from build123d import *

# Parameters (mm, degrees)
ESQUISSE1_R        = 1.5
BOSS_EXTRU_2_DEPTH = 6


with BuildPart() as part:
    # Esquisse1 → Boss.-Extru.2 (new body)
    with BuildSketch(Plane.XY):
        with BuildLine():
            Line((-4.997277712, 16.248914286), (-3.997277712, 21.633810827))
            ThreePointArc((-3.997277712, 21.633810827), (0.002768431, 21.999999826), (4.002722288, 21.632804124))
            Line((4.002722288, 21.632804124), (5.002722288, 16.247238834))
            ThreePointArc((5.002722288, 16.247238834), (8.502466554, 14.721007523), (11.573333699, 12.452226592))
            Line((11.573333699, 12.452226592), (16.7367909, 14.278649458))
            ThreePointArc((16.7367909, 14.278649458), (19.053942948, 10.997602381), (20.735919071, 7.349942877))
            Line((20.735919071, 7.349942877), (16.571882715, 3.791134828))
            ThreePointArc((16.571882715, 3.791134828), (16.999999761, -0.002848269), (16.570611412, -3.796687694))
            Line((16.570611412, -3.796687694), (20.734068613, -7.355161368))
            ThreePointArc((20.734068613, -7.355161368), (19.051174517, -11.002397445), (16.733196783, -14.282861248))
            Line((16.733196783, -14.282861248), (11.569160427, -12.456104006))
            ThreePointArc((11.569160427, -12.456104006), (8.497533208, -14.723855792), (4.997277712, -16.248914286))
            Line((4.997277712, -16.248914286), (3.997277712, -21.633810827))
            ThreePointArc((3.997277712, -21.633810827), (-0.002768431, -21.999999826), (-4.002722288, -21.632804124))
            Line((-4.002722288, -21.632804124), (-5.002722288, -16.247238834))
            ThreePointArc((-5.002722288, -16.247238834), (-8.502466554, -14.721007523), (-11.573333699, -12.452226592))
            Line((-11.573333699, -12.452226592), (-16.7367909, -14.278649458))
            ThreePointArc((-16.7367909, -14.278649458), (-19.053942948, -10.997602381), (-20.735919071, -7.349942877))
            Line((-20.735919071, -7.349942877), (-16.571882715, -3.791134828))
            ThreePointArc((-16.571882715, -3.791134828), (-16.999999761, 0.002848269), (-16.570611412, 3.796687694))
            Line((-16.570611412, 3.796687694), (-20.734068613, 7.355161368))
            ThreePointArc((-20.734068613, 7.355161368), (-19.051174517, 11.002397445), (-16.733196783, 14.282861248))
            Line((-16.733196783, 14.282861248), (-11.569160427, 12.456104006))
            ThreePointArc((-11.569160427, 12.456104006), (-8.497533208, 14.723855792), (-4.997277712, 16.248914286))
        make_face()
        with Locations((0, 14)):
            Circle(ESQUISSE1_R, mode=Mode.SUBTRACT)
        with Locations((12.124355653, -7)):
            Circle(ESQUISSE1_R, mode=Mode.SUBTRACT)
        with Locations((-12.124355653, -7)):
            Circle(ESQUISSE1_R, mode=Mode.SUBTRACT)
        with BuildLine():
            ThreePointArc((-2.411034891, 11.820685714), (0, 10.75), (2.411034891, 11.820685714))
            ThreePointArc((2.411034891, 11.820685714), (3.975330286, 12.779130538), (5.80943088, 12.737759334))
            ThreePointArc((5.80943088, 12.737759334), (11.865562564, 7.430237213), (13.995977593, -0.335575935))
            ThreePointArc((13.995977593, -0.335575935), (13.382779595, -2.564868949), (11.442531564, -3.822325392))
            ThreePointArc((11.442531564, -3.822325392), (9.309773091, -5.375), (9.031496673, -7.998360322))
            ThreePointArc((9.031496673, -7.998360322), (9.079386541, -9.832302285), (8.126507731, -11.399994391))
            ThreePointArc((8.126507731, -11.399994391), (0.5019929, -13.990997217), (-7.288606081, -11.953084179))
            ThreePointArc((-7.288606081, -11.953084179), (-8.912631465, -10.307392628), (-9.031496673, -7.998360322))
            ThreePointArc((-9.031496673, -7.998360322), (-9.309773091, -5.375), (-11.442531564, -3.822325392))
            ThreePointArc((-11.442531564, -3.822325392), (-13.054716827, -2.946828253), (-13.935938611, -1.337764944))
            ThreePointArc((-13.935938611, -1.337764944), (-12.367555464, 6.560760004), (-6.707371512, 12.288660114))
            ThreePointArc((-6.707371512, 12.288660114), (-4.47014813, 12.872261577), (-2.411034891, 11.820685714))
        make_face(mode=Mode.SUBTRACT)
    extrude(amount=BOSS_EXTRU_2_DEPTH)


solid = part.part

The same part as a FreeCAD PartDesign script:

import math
import FreeCAD as App
import Part
import Sketcher

V = App.Vector

doc = App.newDocument("Part")
body = doc.addObject("PartDesign::Body", "Body")

# Sketch on XY plane
sketch1 = body.newObject("Sketcher::SketchObject", "Sketch")
sketch1.AttachmentSupport = (doc.getObject("XY_Plane"), [""])
sketch1.MapMode = "FlatFace"
sketch1.addGeometry([
    Part.LineSegment(V(-4, 21.6, 0), V(-5, 16.2, 0)),  # 0
    Part.ArcOfCircle(Part.Circle(V(0, 0, 0), V(0, 0, 1), 17), math.radians(107), math.radians(133)),  # 1
    Part.LineSegment(V(-11.6, 12.5, 0), V(-16.7, 14.3, 0)),  # 2
    Part.ArcOfCircle(Part.Circle(V(0, 0, 0), V(0, 0, 1), 22), math.radians(140), math.radians(160)),  # 3
    Part.LineSegment(V(-20.7, 7.4, 0), V(-16.6, 3.8, 0)),  # 4
    Part.ArcOfCircle(Part.Circle(V(0, 0, 0), V(0, 0, 1), 17), math.radians(167), math.radians(193)),  # 5
    Part.LineSegment(V(-16.6, -3.8, 0), V(-20.7, -7.3, 0)),  # 6
    Part.ArcOfCircle(Part.Circle(V(0, 0, 0), V(0, 0, 1), 22), math.radians(-160), math.radians(-140)),  # 7
    Part.LineSegment(V(-16.7, -14.3, 0), V(-11.6, -12.5, 0)),  # 8
    Part.ArcOfCircle(Part.Circle(V(0, 0, 0), V(0, 0, 1), 17), math.radians(-133), math.radians(-107)),  # 9
    Part.LineSegment(V(-5, -16.2, 0), V(-4, -21.6, 0)),  # 10
    Part.ArcOfCircle(Part.Circle(V(0, 0, 0), V(0, 0, 1), 22), math.radians(-100), math.radians(-80)),  # 11
    Part.LineSegment(V(4, -21.6, 0), V(5, -16.2, 0)),  # 12
    Part.ArcOfCircle(Part.Circle(V(0, 0, 0), V(0, 0, 1), 17), math.radians(-73), math.radians(-47)),  # 13
    Part.LineSegment(V(11.6, -12.5, 0), V(16.7, -14.3, 0)),  # 14
    Part.ArcOfCircle(Part.Circle(V(0, 0, 0), V(0, 0, 1), 22), math.radians(-40), math.radians(-20)),  # 15
    Part.LineSegment(V(20.7, -7.4, 0), V(16.6, -3.8, 0)),  # 16
    Part.ArcOfCircle(Part.Circle(V(0, 0, 0), V(0, 0, 1), 17), math.radians(-13), math.radians(13)),  # 17
    Part.LineSegment(V(16.6, 3.8, 0), V(20.7, 7.3, 0)),  # 18
    Part.ArcOfCircle(Part.Circle(V(0, 0, 0), V(0, 0, 1), 22), math.radians(20), math.radians(40)),  # 19
    Part.LineSegment(V(16.7, 14.3, 0), V(11.6, 12.5, 0)),  # 20
    Part.ArcOfCircle(Part.Circle(V(0, 0, 0), V(0, 0, 1), 17), math.radians(47), math.radians(73)),  # 21
    Part.LineSegment(V(5, 16.2, 0), V(4, 21.6, 0)),  # 22
    Part.ArcOfCircle(Part.Circle(V(0, 0, 0), V(0, 0, 1), 22), math.radians(80), math.radians(100)),  # 23
    Part.Circle(V(12.1, -7, 0), V(0, 0, 1), 1.5),  # 24
    Part.Circle(V(-12.1, -7, 0), V(0, 0, 1), 1.5),  # 25
    Part.ArcOfCircle(Part.Circle(V(0, 14, 0), V(0, 0, 1), 3.3), math.radians(-138), math.radians(-42)),  # 26
    Part.ArcOfCircle(Part.Circle(V(4.8, 9.6, 0), V(0, 0, 1), 3.2), math.radians(72), math.radians(138)),  # 27
    Part.ArcOfCircle(Part.Circle(V(0, 0, 0), V(0, 0, 1), 14), math.radians(-1), math.radians(65)),  # 28
    Part.ArcOfCircle(Part.Circle(V(10.8, -0.6, 0), V(0, 0, 1), 3.2), math.radians(-78), math.radians(5)),  # 29
    Part.ArcOfCircle(Part.Circle(V(12.1, -7, 0), V(0, 0, 1), 3.3), math.radians(102), math.radians(198)),  # 30
    Part.ArcOfCircle(Part.Circle(V(5.9, -9, 0), V(0, 0, 1), 3.2), math.radians(-48), math.radians(18)),  # 31
    Part.ArcOfCircle(Part.Circle(V(0, 0, 0), V(0, 0, 1), 14), math.radians(-121), math.radians(-55)),  # 32
    Part.ArcOfCircle(Part.Circle(V(-5.9, -9, 0), V(0, 0, 1), 3.2), math.radians(162), math.radians(245)),  # 33
    Part.ArcOfCircle(Part.Circle(V(-12.1, -7, 0), V(0, 0, 1), 3.3), math.radians(-18), math.radians(78)),  # 34
    Part.ArcOfCircle(Part.Circle(V(-10.8, -0.6, 0), V(0, 0, 1), 3.2), math.radians(-168), math.radians(-102)),  # 35
    Part.ArcOfCircle(Part.Circle(V(0, 0, 0), V(0, 0, 1), 14), math.radians(119), math.radians(185)),  # 36
    Part.ArcOfCircle(Part.Circle(V(-4.8, 9.6, 0), V(0, 0, 1), 3.2), math.radians(42), math.radians(125)),  # 37
    Part.Circle(V(0, 14, 0), V(0, 0, 1), 1.5),  # 38
], False)
sketch1.addConstraint([
    Sketcher.Constraint("Coincident", 0, 2, 1, 1),
    Sketcher.Constraint("Coincident", 1, 2, 2, 1),
    Sketcher.Constraint("Coincident", 2, 2, 3, 1),
    Sketcher.Constraint("Coincident", 3, 2, 4, 1),
    Sketcher.Constraint("Coincident", 4, 2, 5, 1),
    Sketcher.Constraint("Coincident", 5, 2, 6, 1),
    Sketcher.Constraint("Coincident", 6, 2, 7, 1),
    Sketcher.Constraint("Coincident", 7, 2, 8, 1),
    Sketcher.Constraint("Coincident", 8, 2, 9, 1),
    Sketcher.Constraint("Coincident", 9, 2, 10, 1),
    Sketcher.Constraint("Coincident", 10, 2, 11, 1),
    Sketcher.Constraint("Coincident", 11, 2, 12, 1),
    Sketcher.Constraint("Coincident", 12, 2, 13, 1),
    Sketcher.Constraint("Coincident", 13, 2, 14, 1),
    Sketcher.Constraint("Coincident", 14, 2, 15, 1),
    Sketcher.Constraint("Coincident", 15, 2, 16, 1),
    Sketcher.Constraint("Coincident", 16, 2, 17, 1),
    Sketcher.Constraint("Coincident", 17, 2, 18, 1),
    Sketcher.Constraint("Coincident", 18, 2, 19, 1),
    Sketcher.Constraint("Coincident", 19, 2, 20, 1),
    Sketcher.Constraint("Coincident", 20, 2, 21, 1),
    Sketcher.Constraint("Coincident", 21, 2, 22, 1),
    Sketcher.Constraint("Coincident", 22, 2, 23, 1),
    Sketcher.Constraint("Coincident", 23, 2, 0, 1),
    Sketcher.Constraint("Tangent", 26, 2, 27, 2),
    Sketcher.Constraint("Coincident", 27, 1, 28, 2),
    Sketcher.Constraint("Coincident", 28, 1, 29, 2),
    Sketcher.Constraint("Tangent", 29, 1, 30, 1),
    Sketcher.Constraint("Tangent", 30, 2, 31, 2),
    Sketcher.Constraint("Coincident", 31, 1, 32, 2),
    Sketcher.Constraint("Coincident", 32, 1, 33, 2),
    Sketcher.Constraint("Tangent", 33, 1, 34, 1),
    Sketcher.Constraint("Tangent", 34, 2, 35, 2),
    Sketcher.Constraint("Coincident", 35, 1, 36, 2),
    Sketcher.Constraint("Coincident", 36, 1, 37, 2),
    Sketcher.Constraint("Tangent", 37, 1, 26, 1),
    Sketcher.Constraint("Coincident", 1, 3, -1, 1),
    Sketcher.Constraint("Coincident", 3, 3, -1, 1),
    Sketcher.Constraint("Coincident", 5, 3, -1, 1),
    Sketcher.Constraint("Coincident", 7, 3, -1, 1),
    Sketcher.Constraint("Coincident", 9, 3, -1, 1),
    Sketcher.Constraint("Coincident", 11, 3, -1, 1),
    Sketcher.Constraint("Coincident", 13, 3, -1, 1),
    Sketcher.Constraint("Coincident", 15, 3, -1, 1),
    Sketcher.Constraint("Coincident", 17, 3, -1, 1),
    Sketcher.Constraint("Coincident", 19, 3, -1, 1),
    Sketcher.Constraint("Coincident", 21, 3, -1, 1),
    Sketcher.Constraint("Coincident", 23, 3, -1, 1),
    Sketcher.Constraint("Coincident", 28, 3, -1, 1),
    Sketcher.Constraint("Coincident", 32, 3, -1, 1),
    Sketcher.Constraint("Coincident", 36, 3, -1, 1),
    Sketcher.Constraint("Coincident", 30, 3, 24, 3),
    Sketcher.Constraint("Coincident", 34, 3, 25, 3),
    Sketcher.Constraint("Coincident", 38, 3, 26, 3),
    Sketcher.Constraint("Equal", 1, 5),
    Sketcher.Constraint("Equal", 3, 7),
    Sketcher.Constraint("Equal", 5, 9),
    Sketcher.Constraint("Equal", 7, 11),
    Sketcher.Constraint("Equal", 9, 13),
    Sketcher.Constraint("Equal", 11, 15),
    Sketcher.Constraint("Equal", 13, 17),
    Sketcher.Constraint("Equal", 15, 19),
    Sketcher.Constraint("Equal", 17, 21),
    Sketcher.Constraint("Equal", 19, 23),
    Sketcher.Constraint("Equal", 24, 25),
    Sketcher.Constraint("Equal", 26, 27),
    Sketcher.Constraint("Equal", 27, 29),
    Sketcher.Constraint("Equal", 29, 30),
    Sketcher.Constraint("Equal", 30, 31),
    Sketcher.Constraint("Equal", 28, 32),
    Sketcher.Constraint("Equal", 31, 33),
    Sketcher.Constraint("Equal", 33, 34),
    Sketcher.Constraint("Equal", 34, 35),
    Sketcher.Constraint("Equal", 32, 36),
    Sketcher.Constraint("Equal", 35, 37),
    Sketcher.Constraint("Equal", 25, 38),
    Sketcher.Constraint("Symmetric", 24, 3, 25, 3, -2),
    Sketcher.Constraint("Symmetric", 27, 3, 37, 3, -2),
    Sketcher.Constraint("Parallel", 0, 12),
    Sketcher.Constraint("Parallel", 2, 14),
    Sketcher.Constraint("Parallel", 4, 16),
    Sketcher.Constraint("Parallel", 6, 18),
    Sketcher.Constraint("Parallel", 8, 20),
    Sketcher.Constraint("Parallel", 10, 22),
    Sketcher.Constraint("Horizontal", 31, 3, 33, 3),
    Sketcher.Constraint("Horizontal", 29, 3, 35, 3),
    Sketcher.Constraint("Equal", 0, 4),
    Sketcher.Constraint("Equal", 2, 6),
    Sketcher.Constraint("Equal", 4, 8),
    Sketcher.Constraint("Equal", 6, 10),
    Sketcher.Constraint("Equal", 8, 12),
    Sketcher.Constraint("Equal", 10, 14),
    Sketcher.Constraint("Equal", 12, 16),
    Sketcher.Constraint("Equal", 14, 18),
    Sketcher.Constraint("Equal", 16, 20),
    Sketcher.Constraint("Equal", 18, 22),
    Sketcher.Constraint("Diameter", 24, 3.0),
    Sketcher.Constraint("Radius", 1, 17.0),
    Sketcher.Constraint("Radius", 3, 22.0),
    Sketcher.Constraint("Radius", 28, 14.0),
    Sketcher.Constraint("Radius", 26, 3.25),
    Sketcher.Constraint("DistanceY", 24, 3, -1, 1, 7.0),
    Sketcher.Constraint("DistanceY", -1, 1, 26, 3, 14.0),
    Sketcher.Constraint("Distance", 0, 5.476962),
    Sketcher.Constraint("Distance", 2, 5.477619),
    Sketcher.Constraint("DistanceX", -1, 1, 27, 3, 4.82207),
    Sketcher.Constraint("DistanceY", 29, 3, -1, 1, 0.644651),
    Sketcher.Constraint("DistanceY", 31, 3, -1, 1, 8.996721),
    Sketcher.Constraint("DistanceX", 1, 2, -1, 1, 11.56916),
    Sketcher.Constraint("DistanceX", 3, 2, -1, 1, 20.734069),
    Sketcher.Constraint("DistanceX", 6, 2, -1, 1, 20.735919),
    Sketcher.Constraint("DistanceX", 7, 2, -1, 1, 16.736791),
    Sketcher.Constraint("DistanceY", 9, 2, -1, 1, 16.247239),
    Sketcher.Constraint("DistanceY", 11, 2, -1, 1, 21.633811),
    Sketcher.Constraint("DistanceX", -1, 1, 29, 1, 11.442532),
])
pad1 = body.newObject("PartDesign::Pad", "Pad")
pad1.Profile = sketch1
pad1.Length = 6

doc.recompute()
